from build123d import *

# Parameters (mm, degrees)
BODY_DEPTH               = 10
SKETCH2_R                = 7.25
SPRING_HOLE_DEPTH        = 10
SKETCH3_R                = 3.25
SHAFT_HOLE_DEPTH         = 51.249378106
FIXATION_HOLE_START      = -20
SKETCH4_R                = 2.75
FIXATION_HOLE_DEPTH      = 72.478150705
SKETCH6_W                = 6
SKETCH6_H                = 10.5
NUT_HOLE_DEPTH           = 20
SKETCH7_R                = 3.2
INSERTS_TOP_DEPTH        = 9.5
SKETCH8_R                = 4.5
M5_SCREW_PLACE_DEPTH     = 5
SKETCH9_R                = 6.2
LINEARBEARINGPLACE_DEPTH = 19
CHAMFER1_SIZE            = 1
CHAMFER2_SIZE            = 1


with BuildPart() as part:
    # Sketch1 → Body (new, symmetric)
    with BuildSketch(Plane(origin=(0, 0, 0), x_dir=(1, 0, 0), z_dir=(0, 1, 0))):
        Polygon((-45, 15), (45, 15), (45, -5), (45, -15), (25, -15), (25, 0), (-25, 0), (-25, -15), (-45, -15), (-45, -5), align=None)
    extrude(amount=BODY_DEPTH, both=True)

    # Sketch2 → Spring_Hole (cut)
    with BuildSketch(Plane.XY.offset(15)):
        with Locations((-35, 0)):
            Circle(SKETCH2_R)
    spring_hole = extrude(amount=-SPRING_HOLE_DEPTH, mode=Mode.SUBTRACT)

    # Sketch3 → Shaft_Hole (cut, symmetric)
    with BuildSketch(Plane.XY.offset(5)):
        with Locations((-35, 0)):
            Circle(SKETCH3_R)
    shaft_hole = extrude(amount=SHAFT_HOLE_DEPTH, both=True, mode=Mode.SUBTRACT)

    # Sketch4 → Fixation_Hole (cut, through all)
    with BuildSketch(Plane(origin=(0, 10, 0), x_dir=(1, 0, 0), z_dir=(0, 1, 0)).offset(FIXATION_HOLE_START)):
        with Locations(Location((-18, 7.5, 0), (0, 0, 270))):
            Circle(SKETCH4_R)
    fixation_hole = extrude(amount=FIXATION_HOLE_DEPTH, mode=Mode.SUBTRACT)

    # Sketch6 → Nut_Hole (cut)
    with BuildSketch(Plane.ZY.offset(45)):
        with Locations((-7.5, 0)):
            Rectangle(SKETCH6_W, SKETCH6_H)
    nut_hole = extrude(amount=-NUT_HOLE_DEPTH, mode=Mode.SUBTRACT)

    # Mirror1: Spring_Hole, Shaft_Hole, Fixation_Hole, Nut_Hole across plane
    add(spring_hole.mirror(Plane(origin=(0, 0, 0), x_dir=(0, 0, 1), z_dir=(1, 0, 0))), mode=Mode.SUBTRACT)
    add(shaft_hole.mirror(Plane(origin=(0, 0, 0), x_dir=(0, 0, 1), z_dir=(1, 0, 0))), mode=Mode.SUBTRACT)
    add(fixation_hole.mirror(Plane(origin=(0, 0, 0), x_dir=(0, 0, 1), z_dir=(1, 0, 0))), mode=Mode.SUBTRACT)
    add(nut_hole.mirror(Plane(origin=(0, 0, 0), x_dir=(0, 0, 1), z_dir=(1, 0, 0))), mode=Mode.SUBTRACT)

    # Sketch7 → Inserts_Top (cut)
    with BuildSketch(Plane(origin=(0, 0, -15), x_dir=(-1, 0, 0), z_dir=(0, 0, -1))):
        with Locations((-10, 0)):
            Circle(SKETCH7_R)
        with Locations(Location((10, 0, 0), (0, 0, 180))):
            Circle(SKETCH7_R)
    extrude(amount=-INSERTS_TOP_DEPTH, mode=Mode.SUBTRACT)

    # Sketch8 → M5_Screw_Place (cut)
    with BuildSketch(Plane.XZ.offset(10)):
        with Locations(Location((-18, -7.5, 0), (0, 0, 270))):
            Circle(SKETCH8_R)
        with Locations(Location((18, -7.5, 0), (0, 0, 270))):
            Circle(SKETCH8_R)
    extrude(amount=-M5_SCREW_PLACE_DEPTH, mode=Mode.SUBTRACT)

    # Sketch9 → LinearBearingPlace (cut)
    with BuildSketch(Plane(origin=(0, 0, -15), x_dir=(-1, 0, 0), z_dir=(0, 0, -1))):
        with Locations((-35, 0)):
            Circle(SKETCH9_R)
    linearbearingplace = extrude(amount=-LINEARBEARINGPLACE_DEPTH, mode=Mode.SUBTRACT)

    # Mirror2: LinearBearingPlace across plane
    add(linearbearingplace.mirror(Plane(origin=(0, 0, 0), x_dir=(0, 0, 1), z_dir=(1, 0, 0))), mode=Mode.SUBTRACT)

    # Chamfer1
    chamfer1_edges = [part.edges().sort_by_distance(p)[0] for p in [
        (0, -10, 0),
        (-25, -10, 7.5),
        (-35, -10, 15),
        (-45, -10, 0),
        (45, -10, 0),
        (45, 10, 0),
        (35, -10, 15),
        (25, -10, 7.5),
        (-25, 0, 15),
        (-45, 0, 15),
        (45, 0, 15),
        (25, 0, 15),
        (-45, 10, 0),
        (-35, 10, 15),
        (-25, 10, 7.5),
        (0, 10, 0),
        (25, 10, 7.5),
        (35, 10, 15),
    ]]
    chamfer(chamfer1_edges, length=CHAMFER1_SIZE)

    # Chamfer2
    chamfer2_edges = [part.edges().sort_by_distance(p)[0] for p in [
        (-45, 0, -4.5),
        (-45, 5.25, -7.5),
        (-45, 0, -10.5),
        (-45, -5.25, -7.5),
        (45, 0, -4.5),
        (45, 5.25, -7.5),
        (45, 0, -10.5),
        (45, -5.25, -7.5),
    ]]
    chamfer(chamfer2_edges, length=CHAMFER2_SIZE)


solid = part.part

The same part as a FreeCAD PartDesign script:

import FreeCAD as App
import Part
import Sketcher
from FreeCAD import Vector


def edges_at(feature, points):
    """Names of the edges that pass closest to the given points."""
    edges = feature.Shape.Edges
    near = lambda p: min(range(len(edges)), key=lambda i: edges[i].distToShape(Part.Vertex(*p))[0])
    return sorted({f"Edge{near(p) + 1}" for p in points})


def add_polygon(sketch, points):
    """Adds a closed chain of lines whose ends are joined by coincident constraints."""
    first, n = sketch.GeometryCount, len(points)
    for a, b in zip(points, points[1:] + points[:1]):
        sketch.addGeometry(Part.LineSegment(App.Vector(*a, 0), App.Vector(*b, 0)), False)
    for i in range(n):
        sketch.addConstraint(Sketcher.Constraint("Coincident", first + i, 2, first + (i + 1) % n, 1))

doc = App.newDocument("Part")
body = doc.addObject("PartDesign::Body", "Body")

sketch1 = doc.addObject("Sketcher::SketchObject", "Sketch")
body.addObject(sketch1)
sketch1.AttachmentSupport = (doc.XZ_Plane, [""])
sketch1.MapMode = "FlatFace"
add_polygon(sketch1, [(45, -15), (-45, -15), (-45, 15), (-25, 15), (-25, 0), (25, 0), (25, 15), (45, 15)])
sketch1.addConstraint(Sketcher.Constraint("Horizontal", 0))
sketch1.addConstraint(Sketcher.Constraint("Vertical", 1))
sketch1.addConstraint(Sketcher.Constraint("Horizontal", 2))
sketch1.addConstraint(Sketcher.Constraint("Vertical", 3))
sketch1.addConstraint(Sketcher.Constraint("Horizontal", 4))
sketch1.addConstraint(Sketcher.Constraint("Vertical", 5))
sketch1.addConstraint(Sketcher.Constraint("Horizontal", 6))
sketch1.addConstraint(Sketcher.Constraint("Vertical", 7))
sketch1.addConstraint(Sketcher.Constraint("Symmetric", 3, 2, 4, 2, -1, 1))
sketch1.addConstraint(Sketcher.Constraint("Symmetric", 0, 2, 6, 2, -1, 1))
sketch1.addConstraint(Sketcher.Constraint("Horizontal", 2, 2, 5, 2))
sketch1.addConstraint(Sketcher.Constraint("DistanceX", 0, 2, 0, 1, 90.0))
sketch1.addConstraint(Sketcher.Constraint("DistanceX", 2, 1, 2, 2, 20.0))
sketch1.addConstraint(Sketcher.Constraint("DistanceY", 1, 1, 1, 2, 30.0))
pad1 = doc.addObject("PartDesign::Pad", "Pad")
body.addObject(pad1)
pad1.Profile = sketch1
pad1.Length = 20
pad1.Midplane = True

sketch2 = doc.addObject("Sketcher::SketchObject", "Sketch001")
body.addObject(sketch2)
sketch2.AttachmentSupport = (doc.XY_Plane, [""])
sketch2.MapMode = "FlatFace"
sketch2.AttachmentOffset = App.Placement(Vector(0, 0, 15), App.Rotation())
sketch2.addGeometry(Part.Circle(Vector(-35, 0, 0), Vector(0, 0, 1), 7), False)
sketch2.addConstraint(Sketcher.Constraint("PointOnObject", 0, 3, -1))
sketch2.addConstraint(Sketcher.Constraint("Diameter", 0, 14.5))
sketch2.addConstraint(Sketcher.Constraint("DistanceX", 0, 3, -1, 1, 35.0))
pocket1 = doc.addObject("PartDesign::Pocket", "Pocket")
body.addObject(pocket1)
pocket1.Profile = sketch2
pocket1.Length = 10

sketch3 = doc.addObject("Sketcher::SketchObject", "Sketch002")
body.addObject(sketch3)
sketch3.AttachmentSupport = (doc.XY_Plane, [""])
sketch3.MapMode = "FlatFace"
sketch3.AttachmentOffset = App.Placement(Vector(0, 0, 5), App.Rotation())
sketch3.addGeometry(Part.Circle(Vector(-35, 0, 0), Vector(0, 0, 1), 3.2), False)
sketch3.addConstraint(Sketcher.Constraint("PointOnObject", 0, 3, -1))
sketch3.addConstraint(Sketcher.Constraint("Diameter", 0, 6.5))
sketch3.addConstraint(Sketcher.Constraint("DistanceX", 0, 3, -1, 1, 35.0))
pocket2 = doc.addObject("PartDesign::Pocket", "Pocket001")
body.addObject(pocket2)
pocket2.Profile = sketch3
pocket2.Length = 102.498756
pocket2.Midplane = True

sketch4 = doc.addObject("Sketcher::SketchObject", "Sketch003")
body.addObject(sketch4)
sketch4.AttachmentSupport = (doc.XZ_Plane, [""])
sketch4.MapMode = "FlatFace"
sketch4.AttachmentOffset = App.Placement(Vector(0, 0, 10), App.Rotation())
sketch4.addGeometry(Part.Circle(Vector(-18, -7.5, 0), Vector(0, 0, 1), 2.8), False)
sketch4.addConstraint(Sketcher.Constraint("Diameter", 0, 5.5))
sketch4.addConstraint(Sketcher.Constraint("DistanceX", 0, 3, -1, 1, 18.0))
sketch4.addConstraint(Sketcher.Constraint("DistanceY", 0, 3, -1, 1, 7.5))
pocket3 = doc.addObject("PartDesign::Pocket", "Pocket002")
body.addObject(pocket3)
pocket3.Profile = sketch4
pocket3.Type = "ThroughAll"

sketch5 = doc.addObject("Sketcher::SketchObject", "Sketch004")
body.addObject(sketch5)
sketch5.AttachmentSupport = (doc.YZ_Plane, [""])
sketch5.MapMode = "FlatFace"
sketch5.AttachmentOffset = App.Placement(Vector(0, 0, -45), App.Rotation())
add_polygon(sketch5, [(5, -10), (-5, -10), (-5, -4), (5, -4)])
sketch5.addConstraint(Sketcher.Constraint("Horizontal", 0))
sketch5.addConstraint(Sketcher.Constraint("Vertical", 1))
sketch5.addConstraint(Sketcher.Constraint("Horizontal", 2))
sketch5.addConstraint(Sketcher.Constraint("Vertical", 3))
sketch5.addConstraint(Sketcher.Constraint("DistanceY", 1, 1, 1, 2, 6.0))
sketch5.addConstraint(Sketcher.Constraint("DistanceX", 0, 2, 0, 1, 10.5))
sketch5.addConstraint(Sketcher.Constraint("DistanceY", 0, 2, -1, 1, 10.5))
sketch5.addConstraint(Sketcher.Constraint("DistanceX", 0, 2, -1, 1, 5.25))
pocket4 = doc.addObject("PartDesign::Pocket", "Pocket003")
body.addObject(pocket4)
pocket4.Profile = sketch5
pocket4.Length = 20
pocket4.Reversed = True
doc.recompute()

mirrored = doc.addObject("PartDesign::Mirrored", "Mirrored")
body.addObject(mirrored)
mirrored.Originals = [pocket1, pocket2, pocket3, pocket4]
mirrored.MirrorPlane = (doc.YZ_Plane, [""])
body.Tip = mirrored

sketch6 = doc.addObject("Sketcher::SketchObject", "Sketch005")
body.addObject(sketch6)
sketch6.AttachmentSupport = (doc.XY_Plane, [""])
sketch6.MapMode = "FlatFace"
sketch6.AttachmentOffset = App.Placement(Vector(0, 0, -15), App.Rotation())
sketch6.addGeometry(Part.Circle(Vector(10, 0, 0), Vector(0, 0, 1), 3.2), False)
sketch6.addGeometry(Part.Circle(Vector(-10, 0, 0), Vector(0, 0, 1), 3.2), False)
sketch6.addConstraint(Sketcher.Constraint("Equal", 0, 1))
sketch6.addConstraint(Sketcher.Constraint("Symmetric", 0, 3, 1, 3, -1, 1))
sketch6.addConstraint(Sketcher.Constraint("PointOnObject", 0, 3, -1))
sketch6.addConstraint(Sketcher.Constraint("Diameter", 0, 6.4))
sketch6.addConstraint(Sketcher.Constraint("DistanceX", -1, 1, 0, 3, 10.0))
pocket5 = doc.addObject("PartDesign::Pocket", "Pocket004")
body.addObject(pocket5)
pocket5.Profile = sketch6
pocket5.Length = 9.5
pocket5.Reversed = True

sketch7 = doc.addObject("Sketcher::SketchObject", "Sketch006")
body.addObject(sketch7)
sketch7.AttachmentSupport = (doc.XZ_Plane, [""])
sketch7.MapMode = "FlatFace"
sketch7.AttachmentOffset = App.Placement(Vector(0, 0, 10), App.Rotation())
sketch7.addGeometry(Part.Circle(Vector(-18, -7.5, 0), Vector(0, 0, 1), 4.5), False)
sketch7.addGeometry(Part.Circle(Vector(18, -7.5, 0), Vector(0, 0, 1), 4.5), False)
sketch7.addConstraint(Sketcher.Constraint("Equal", 0, 1))
sketch7.addConstraint(Sketcher.Constraint("Symmetric", 0, 3, 1, 3, -2))
sketch7.addConstraint(Sketcher.Constraint("Diameter", 0, 9.0))
sketch7.addConstraint(Sketcher.Constraint("DistanceX", 0, 3, -1, 1, 18.0))
sketch7.addConstraint(Sketcher.Constraint("DistanceY", 0, 3, -1, 1, 7.5))
pocket6 = doc.addObject("PartDesign::Pocket", "Pocket005")
body.addObject(pocket6)
pocket6.Profile = sketch7
pocket6.Length = 5

sketch8 = doc.addObject("Sketcher::SketchObject", "Sketch007")
body.addObject(sketch8)
sketch8.AttachmentSupport = (doc.XY_Plane, [""])
sketch8.MapMode = "FlatFace"
sketch8.AttachmentOffset = App.Placement(Vector(0, 0, -15), App.Rotation())
sketch8.addGeometry(Part.Circle(Vector(35, 0, 0), Vector(0, 0, 1), 6), False)
sketch8.addConstraint(Sketcher.Constraint("PointOnObject", 0, 3, -1))
sketch8.addConstraint(Sketcher.Constraint("Diameter", 0, 12.4))
sketch8.addConstraint(Sketcher.Constraint("DistanceX", -1, 1, 0, 3, 35.0))
pocket7 = doc.addObject("PartDesign::Pocket", "Pocket006")
body.addObject(pocket7)
pocket7.Profile = sketch8
pocket7.Length = 19
pocket7.Reversed = True
doc.recompute()

mirrored2 = doc.addObject("PartDesign::Mirrored", "Mirrored001")
body.addObject(mirrored2)
mirrored2.Originals = [pocket7]
mirrored2.MirrorPlane = (doc.YZ_Plane, [""])
body.Tip = mirrored2
doc.recompute()

chamfer = doc.addObject("PartDesign::Chamfer", "Chamfer")
body.addObject(chamfer)
chamfer.Base = (mirrored2, edges_at(mirrored2, [
    (0, -10, 0),
    (-25, -10, 7.5),
    (-35, -10, 15),
    (-45, -10, 0),
    (45, -10, 0),
    (45, 10, 0),
    (35, -10, 15),
    (25, -10, 7.5),
    (-25, 0, 15),
    (-45, 0, 15),
    (45, 0, 15),
    (25, 0, 15),
    (-45, 10, 0),
    (-35, 10, 15),
    (-25, 10, 7.5),
    (0, 10, 0),
    (25, 10, 7.5),
    (35, 10, 15),
]))
chamfer.Size = 1
doc.recompute()

chamfer2 = doc.addObject("PartDesign::Chamfer", "Chamfer001")
body.addObject(chamfer2)
chamfer2.Base = (chamfer, edges_at(chamfer, [
    (-45, 0, -4.5),
    (-45, 5.25, -7.5),
    (-45, 0, -10.5),
    (-45, -5.25, -7.5),
    (45, 0, -4.5),
    (45, 5.25, -7.5),
    (45, 0, -10.5),
    (45, -5.25, -7.5),
]))
chamfer2.Size = 1

doc.recompute()
